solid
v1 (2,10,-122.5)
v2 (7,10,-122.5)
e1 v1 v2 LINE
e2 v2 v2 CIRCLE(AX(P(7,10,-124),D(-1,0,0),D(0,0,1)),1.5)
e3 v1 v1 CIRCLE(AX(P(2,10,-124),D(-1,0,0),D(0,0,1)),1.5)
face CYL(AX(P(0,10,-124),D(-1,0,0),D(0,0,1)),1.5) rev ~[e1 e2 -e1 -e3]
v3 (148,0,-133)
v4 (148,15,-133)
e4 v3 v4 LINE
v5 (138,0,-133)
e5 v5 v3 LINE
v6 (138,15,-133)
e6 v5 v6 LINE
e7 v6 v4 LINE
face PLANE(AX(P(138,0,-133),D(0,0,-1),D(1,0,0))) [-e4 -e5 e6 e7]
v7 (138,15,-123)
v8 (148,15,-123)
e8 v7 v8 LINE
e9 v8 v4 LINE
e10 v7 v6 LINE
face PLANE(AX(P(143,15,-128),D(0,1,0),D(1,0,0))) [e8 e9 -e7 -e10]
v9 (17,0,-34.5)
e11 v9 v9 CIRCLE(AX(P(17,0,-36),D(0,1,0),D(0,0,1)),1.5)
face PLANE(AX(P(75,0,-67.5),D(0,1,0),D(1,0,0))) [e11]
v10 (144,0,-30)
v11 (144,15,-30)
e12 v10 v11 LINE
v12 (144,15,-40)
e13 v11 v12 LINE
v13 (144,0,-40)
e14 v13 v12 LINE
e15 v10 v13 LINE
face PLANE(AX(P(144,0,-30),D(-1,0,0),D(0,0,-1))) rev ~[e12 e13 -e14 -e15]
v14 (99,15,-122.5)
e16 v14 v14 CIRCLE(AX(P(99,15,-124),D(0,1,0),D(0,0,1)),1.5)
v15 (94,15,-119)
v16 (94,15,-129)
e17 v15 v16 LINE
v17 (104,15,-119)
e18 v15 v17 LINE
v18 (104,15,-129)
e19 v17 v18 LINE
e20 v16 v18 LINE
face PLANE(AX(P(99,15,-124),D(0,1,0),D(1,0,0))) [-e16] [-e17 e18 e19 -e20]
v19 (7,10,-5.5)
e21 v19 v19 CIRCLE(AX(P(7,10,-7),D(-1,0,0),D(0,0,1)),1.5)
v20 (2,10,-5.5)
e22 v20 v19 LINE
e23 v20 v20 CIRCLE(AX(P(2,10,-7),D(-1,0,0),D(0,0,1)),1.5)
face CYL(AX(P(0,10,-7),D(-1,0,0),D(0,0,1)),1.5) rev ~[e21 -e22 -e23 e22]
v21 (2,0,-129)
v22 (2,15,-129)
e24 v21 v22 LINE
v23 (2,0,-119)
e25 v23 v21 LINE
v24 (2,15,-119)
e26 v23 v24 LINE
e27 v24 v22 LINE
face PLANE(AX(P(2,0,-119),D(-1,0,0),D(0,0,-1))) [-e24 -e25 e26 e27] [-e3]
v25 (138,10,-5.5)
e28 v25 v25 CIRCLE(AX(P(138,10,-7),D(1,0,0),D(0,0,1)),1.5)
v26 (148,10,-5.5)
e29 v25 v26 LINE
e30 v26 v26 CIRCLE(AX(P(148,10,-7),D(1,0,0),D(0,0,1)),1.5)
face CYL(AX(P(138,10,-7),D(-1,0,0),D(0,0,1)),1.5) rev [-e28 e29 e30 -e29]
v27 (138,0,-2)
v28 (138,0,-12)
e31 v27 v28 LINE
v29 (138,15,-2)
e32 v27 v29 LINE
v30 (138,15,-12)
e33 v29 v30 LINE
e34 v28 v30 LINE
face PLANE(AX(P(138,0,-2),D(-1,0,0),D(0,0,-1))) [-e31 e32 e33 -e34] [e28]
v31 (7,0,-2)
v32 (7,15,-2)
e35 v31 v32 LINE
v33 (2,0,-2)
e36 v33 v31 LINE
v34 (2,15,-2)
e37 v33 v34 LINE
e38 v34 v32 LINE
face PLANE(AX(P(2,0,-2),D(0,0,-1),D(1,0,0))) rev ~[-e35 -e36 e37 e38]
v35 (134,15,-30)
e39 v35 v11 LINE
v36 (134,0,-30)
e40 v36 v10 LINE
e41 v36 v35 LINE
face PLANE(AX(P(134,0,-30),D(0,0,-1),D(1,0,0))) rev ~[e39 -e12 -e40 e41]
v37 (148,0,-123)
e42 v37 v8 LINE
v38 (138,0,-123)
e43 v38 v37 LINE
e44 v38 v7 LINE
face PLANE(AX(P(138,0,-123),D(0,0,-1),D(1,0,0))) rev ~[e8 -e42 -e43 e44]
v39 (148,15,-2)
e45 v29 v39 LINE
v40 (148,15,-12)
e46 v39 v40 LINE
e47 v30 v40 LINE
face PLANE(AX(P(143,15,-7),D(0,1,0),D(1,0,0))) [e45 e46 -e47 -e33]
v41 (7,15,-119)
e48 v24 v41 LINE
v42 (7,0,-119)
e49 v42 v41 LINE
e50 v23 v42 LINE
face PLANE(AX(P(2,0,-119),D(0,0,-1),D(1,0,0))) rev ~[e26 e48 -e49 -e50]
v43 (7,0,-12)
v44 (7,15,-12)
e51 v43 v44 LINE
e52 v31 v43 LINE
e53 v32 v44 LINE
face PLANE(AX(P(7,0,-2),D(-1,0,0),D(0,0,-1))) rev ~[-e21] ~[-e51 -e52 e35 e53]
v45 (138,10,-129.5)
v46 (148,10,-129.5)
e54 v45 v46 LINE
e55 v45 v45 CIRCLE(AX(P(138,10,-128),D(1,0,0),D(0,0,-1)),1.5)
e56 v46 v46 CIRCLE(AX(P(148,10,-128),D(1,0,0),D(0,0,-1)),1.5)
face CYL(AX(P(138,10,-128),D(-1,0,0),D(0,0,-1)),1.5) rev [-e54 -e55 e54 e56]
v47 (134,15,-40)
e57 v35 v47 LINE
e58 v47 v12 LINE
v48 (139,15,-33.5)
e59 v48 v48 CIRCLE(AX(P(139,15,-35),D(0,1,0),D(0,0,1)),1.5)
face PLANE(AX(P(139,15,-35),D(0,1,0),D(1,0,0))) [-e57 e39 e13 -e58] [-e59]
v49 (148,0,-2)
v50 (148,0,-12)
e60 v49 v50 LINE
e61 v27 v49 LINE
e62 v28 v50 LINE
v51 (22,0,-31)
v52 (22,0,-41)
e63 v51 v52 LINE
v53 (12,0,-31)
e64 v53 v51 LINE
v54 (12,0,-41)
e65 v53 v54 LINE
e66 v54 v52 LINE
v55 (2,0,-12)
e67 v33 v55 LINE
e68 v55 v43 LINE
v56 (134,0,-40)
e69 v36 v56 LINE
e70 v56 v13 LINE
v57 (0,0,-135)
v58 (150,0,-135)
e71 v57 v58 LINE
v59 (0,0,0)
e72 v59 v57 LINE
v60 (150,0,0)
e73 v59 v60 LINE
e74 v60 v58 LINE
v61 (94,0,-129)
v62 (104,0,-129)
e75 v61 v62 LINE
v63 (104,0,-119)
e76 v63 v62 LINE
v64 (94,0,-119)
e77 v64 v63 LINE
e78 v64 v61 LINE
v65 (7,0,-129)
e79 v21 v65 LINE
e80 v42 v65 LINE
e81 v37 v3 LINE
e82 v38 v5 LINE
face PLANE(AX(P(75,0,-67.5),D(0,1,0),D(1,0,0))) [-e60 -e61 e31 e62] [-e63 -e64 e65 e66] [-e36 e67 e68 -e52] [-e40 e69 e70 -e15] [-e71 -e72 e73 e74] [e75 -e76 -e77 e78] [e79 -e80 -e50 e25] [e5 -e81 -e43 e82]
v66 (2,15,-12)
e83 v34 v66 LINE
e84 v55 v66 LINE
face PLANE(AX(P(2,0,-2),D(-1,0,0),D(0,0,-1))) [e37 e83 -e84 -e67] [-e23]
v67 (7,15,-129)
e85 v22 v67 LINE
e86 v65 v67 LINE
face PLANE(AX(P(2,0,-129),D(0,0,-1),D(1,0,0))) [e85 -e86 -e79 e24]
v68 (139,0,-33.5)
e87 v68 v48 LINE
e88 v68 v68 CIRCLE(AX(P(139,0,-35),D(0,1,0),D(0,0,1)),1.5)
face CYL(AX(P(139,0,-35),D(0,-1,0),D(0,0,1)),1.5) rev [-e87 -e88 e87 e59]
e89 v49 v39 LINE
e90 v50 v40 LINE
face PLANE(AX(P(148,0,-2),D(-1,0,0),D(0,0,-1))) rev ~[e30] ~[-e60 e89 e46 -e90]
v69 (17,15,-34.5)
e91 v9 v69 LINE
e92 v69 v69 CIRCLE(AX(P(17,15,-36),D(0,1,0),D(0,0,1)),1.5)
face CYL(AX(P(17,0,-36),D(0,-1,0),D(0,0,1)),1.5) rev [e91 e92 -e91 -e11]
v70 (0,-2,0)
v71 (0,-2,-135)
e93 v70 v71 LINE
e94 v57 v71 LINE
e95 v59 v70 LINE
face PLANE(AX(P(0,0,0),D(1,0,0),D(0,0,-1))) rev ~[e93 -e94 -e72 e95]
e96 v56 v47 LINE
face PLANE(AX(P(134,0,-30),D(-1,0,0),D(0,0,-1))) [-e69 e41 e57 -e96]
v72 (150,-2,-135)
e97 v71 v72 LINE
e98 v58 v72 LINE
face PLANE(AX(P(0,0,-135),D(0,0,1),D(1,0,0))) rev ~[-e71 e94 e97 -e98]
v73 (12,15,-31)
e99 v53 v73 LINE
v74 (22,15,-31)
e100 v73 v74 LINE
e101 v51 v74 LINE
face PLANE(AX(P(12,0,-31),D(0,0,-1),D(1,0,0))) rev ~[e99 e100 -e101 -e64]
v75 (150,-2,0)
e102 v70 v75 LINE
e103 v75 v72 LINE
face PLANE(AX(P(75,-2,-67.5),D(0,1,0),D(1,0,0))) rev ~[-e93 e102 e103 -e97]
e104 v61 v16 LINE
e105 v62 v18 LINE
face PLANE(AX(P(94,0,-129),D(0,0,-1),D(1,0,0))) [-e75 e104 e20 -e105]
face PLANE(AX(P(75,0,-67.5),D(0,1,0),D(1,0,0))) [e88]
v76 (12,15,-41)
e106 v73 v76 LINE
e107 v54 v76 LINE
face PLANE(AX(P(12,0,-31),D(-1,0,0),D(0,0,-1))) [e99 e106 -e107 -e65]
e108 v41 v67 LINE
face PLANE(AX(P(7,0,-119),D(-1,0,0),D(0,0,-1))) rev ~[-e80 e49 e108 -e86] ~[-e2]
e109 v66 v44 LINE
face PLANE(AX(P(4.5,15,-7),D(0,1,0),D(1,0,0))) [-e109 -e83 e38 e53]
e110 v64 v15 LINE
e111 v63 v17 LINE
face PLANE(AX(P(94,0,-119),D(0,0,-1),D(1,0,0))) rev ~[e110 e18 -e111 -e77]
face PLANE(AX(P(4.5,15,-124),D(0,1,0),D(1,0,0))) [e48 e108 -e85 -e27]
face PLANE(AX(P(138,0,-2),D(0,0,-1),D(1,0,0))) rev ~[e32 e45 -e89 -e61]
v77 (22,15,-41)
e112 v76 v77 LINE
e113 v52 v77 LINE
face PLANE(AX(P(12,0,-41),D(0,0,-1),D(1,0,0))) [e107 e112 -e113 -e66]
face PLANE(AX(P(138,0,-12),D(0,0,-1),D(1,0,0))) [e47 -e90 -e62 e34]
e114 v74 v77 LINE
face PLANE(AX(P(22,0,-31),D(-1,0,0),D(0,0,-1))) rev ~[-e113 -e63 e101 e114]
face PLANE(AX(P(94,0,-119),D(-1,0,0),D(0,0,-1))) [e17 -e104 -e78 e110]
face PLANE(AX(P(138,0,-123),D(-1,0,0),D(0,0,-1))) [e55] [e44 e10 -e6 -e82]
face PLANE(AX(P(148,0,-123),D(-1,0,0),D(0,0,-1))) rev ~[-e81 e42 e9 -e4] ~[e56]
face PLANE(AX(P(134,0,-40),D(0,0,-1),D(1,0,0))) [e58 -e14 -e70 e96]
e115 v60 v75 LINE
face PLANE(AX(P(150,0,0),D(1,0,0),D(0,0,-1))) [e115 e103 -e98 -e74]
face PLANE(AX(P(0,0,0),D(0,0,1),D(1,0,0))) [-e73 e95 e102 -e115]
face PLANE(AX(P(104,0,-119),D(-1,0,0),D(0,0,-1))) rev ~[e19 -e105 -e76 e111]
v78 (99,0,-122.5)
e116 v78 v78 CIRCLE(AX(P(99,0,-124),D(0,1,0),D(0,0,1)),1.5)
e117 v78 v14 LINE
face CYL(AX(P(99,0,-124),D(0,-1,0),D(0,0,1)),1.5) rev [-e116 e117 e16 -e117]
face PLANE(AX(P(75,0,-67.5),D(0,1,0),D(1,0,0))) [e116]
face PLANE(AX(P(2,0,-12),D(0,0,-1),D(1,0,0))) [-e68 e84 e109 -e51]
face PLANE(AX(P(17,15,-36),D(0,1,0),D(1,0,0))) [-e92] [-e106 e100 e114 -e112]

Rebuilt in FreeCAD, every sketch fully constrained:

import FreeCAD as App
import Part
import Sketcher

V = App.Vector
Q = App.Units.Quantity

doc = App.newDocument("Part")
params = doc.addObject("Spreadsheet::Sheet", "Params")
for row, (alias, value) in enumerate([
    ("sketch1_width", "150 mm"),
    ("sketch1_height", "135 mm"),
    ("pad1_length", "2 mm"),
    ("sketch2_diameter", "3 mm"),
    ("sketch2_width", "5 mm"),
    ("sketch2_width2", "10 mm"),
    ("pad2_length", "15 mm"),
    ("sketch3_diameter", "3 mm"),
    ("pocket1_length", "10 mm"),
    ("sketch4_diameter", "3 mm"),
    ("pocket2_length", "10 mm"),
], start=1):
    params.set(f"A{row}", alias)
    params.set(f"B{row}", "=" + value)
    params.setAlias(f"B{row}", alias)

body = doc.addObject("PartDesign::Body", "Body")

sketch1 = body.newObject("Sketcher::SketchObject", "Sketch")
sketch1.AttachmentSupport = (doc.getObject("XZ_Plane"), [""])
sketch1.MapMode = "FlatFace"
sketch1.addGeometry([
    Part.LineSegment(V(0, -135, 0), V(0, 0, 0)),
    Part.LineSegment(V(0, 0, 0), V(150, 0, 0)),
    Part.LineSegment(V(150, 0, 0), V(150, -135, 0)),
    Part.LineSegment(V(150, -135, 0), V(0, -135, 0)),
], False)
sketch1.addConstraint([
    Sketcher.Constraint("Coincident", 0, 2, 1, 1),
    Sketcher.Constraint("Coincident", 1, 2, 2, 1),
    Sketcher.Constraint("Coincident", 2, 2, 3, 1),
    Sketcher.Constraint("Coincident", 3, 2, 0, 1),
    Sketcher.Constraint("Vertical", 0),
    Sketcher.Constraint("Horizontal", 1),
    Sketcher.Constraint("Vertical", 2),
    Sketcher.Constraint("Horizontal", 3),
    Sketcher.Constraint("Coincident", 0, 2, -1, 1),
    Sketcher.Constraint("DistanceX", 1, 1, 1, 2, Q("150 mm")),
    Sketcher.Constraint("DistanceY", 0, 1, 0, 2, Q("135 mm")),
])
sketch1.setExpression("Constraints[9]", "Params.sketch1_width")
sketch1.setExpression("Constraints[10]", "Params.sketch1_height")
pad1 = body.newObject("PartDesign::Pad", "Pad")
pad1.Profile = sketch1
pad1.setExpression("Length", "Params.pad1_length")

sketch2 = body.newObject("Sketcher::SketchObject", "Sketch001")
sketch2.AttachmentSupport = (doc.getObject("XZ_Plane"), [""])
sketch2.MapMode = "FlatFace"
sketch2.addGeometry([
    Part.LineSegment(V(2, -129, 0), V(2, -119, 0)),
    Part.LineSegment(V(2, -119, 0), V(7, -119, 0)),
    Part.LineSegment(V(7, -119, 0), V(7, -129, 0)),
    Part.LineSegment(V(7, -129, 0), V(2, -129, 0)),
    Part.LineSegment(V(2, -12, 0), V(2, -2, 0)),
    Part.LineSegment(V(2, -2, 0), V(7, -2, 0)),
    Part.LineSegment(V(7, -2, 0), V(7, -12, 0)),
    Part.LineSegment(V(7, -12, 0), V(2, -12, 0)),
    Part.LineSegment(V(138, -133, 0), V(138, -123, 0)),
    Part.LineSegment(V(138, -123, 0), V(148, -123, 0)),
    Part.LineSegment(V(148, -123, 0), V(148, -133, 0)),
    Part.LineSegment(V(148, -133, 0), V(138, -133, 0)),
    Part.LineSegment(V(138, -12, 0), V(138, -2, 0)),
    Part.LineSegment(V(138, -2, 0), V(148, -2, 0)),
    Part.LineSegment(V(148, -2, 0), V(148, -12, 0)),
    Part.LineSegment(V(148, -12, 0), V(138, -12, 0)),
    Part.LineSegment(V(134, -40, 0), V(134, -30, 0)),
    Part.LineSegment(V(134, -30, 0), V(144, -30, 0)),
    Part.LineSegment(V(144, -30, 0), V(144, -40, 0)),
    Part.LineSegment(V(144, -40, 0), V(134, -40, 0)),
    Part.Circle(V(139, -35, 0), V(0, 0, 1), 1.5),
    Part.LineSegment(V(12, -41, 0), V(12, -31, 0)),
    Part.LineSegment(V(12, -31, 0), V(22, -31, 0)),
    Part.LineSegment(V(22, -31, 0), V(22, -41, 0)),
    Part.LineSegment(V(22, -41, 0), V(12, -41, 0)),
    Part.Circle(V(17, -36, 0), V(0, 0, 1), 1.5),
    Part.LineSegment(V(94, -129, 0), V(94, -119, 0)),
    Part.LineSegment(V(94, -119, 0), V(104, -119, 0)),
    Part.LineSegment(V(104, -119, 0), V(104, -129, 0)),
    Part.LineSegment(V(104, -129, 0), V(94, -129, 0)),
    Part.Circle(V(99, -124, 0), V(0, 0, 1), 1.5),
], False)
sketch2.addConstraint([
    Sketcher.Constraint("Coincident", 0, 2, 1, 1),
    Sketcher.Constraint("Coincident", 1, 2, 2, 1),
    Sketcher.Constraint("Coincident", 2, 2, 3, 1),
    Sketcher.Constraint("Coincident", 3, 2, 0, 1),
    Sketcher.Constraint("Coincident", 4, 2, 5, 1),
    Sketcher.Constraint("Coincident", 5, 2, 6, 1),
    Sketcher.Constraint("Coincident", 6, 2, 7, 1),
    Sketcher.Constraint("Coincident", 7, 2, 4, 1),
    Sketcher.Constraint("Coincident", 8, 2, 9, 1),
    Sketcher.Constraint("Coincident", 9, 2, 10, 1),
    Sketcher.Constraint("Coincident", 10, 2, 11, 1),
    Sketcher.Constraint("Coincident", 11, 2, 8, 1),
    Sketcher.Constraint("Coincident", 12, 2, 13, 1),
    Sketcher.Constraint("Coincident", 13, 2, 14, 1),
    Sketcher.Constraint("Coincident", 14, 2, 15, 1),
    Sketcher.Constraint("Coincident", 15, 2, 12, 1),
    Sketcher.Constraint("Coincident", 16, 2, 17, 1),
    Sketcher.Constraint("Coincident", 17, 2, 18, 1),
    Sketcher.Constraint("Coincident", 18, 2, 19, 1),
    Sketcher.Constraint("Coincident", 19, 2, 16, 1),
    Sketcher.Constraint("Coincident", 21, 2, 22, 1),
    Sketcher.Constraint("Coincident", 22, 2, 23, 1),
    Sketcher.Constraint("Coincident", 23, 2, 24, 1),
    Sketcher.Constraint("Coincident", 24, 2, 21, 1),
    Sketcher.Constraint("Coincident", 26, 2, 27, 1),
    Sketcher.Constraint("Coincident", 27, 2, 28, 1),
    Sketcher.Constraint("Coincident", 28, 2, 29, 1),
    Sketcher.Constraint("Coincident", 29, 2, 26, 1),
    Sketcher.Constraint("Vertical", 0),
    Sketcher.Constraint("Horizontal", 1),
    Sketcher.Constraint("Vertical", 2),
    Sketcher.Constraint("Horizontal", 3),
    Sketcher.Constraint("Vertical", 4),
    Sketcher.Constraint("Horizontal", 5),
    Sketcher.Constraint("Vertical", 6),
    Sketcher.Constraint("Horizontal", 7),
    Sketcher.Constraint("Vertical", 8),
    Sketcher.Constraint("Horizontal", 9),
    Sketcher.Constraint("Vertical", 10),
    Sketcher.Constraint("Horizontal", 11),
    Sketcher.Constraint("Vertical", 12),
    Sketcher.Constraint("Horizontal", 13),
    Sketcher.Constraint("Vertical", 14),
    Sketcher.Constraint("Horizontal", 15),
    Sketcher.Constraint("Vertical", 16),
    Sketcher.Constraint("Horizontal", 17),
    Sketcher.Constraint("Vertical", 18),
    Sketcher.Constraint("Horizontal", 19),
    Sketcher.Constraint("Vertical", 21),
    Sketcher.Constraint("Horizontal", 22),
    Sketcher.Constraint("Vertical", 23),
    Sketcher.Constraint("Horizontal", 24),
    Sketcher.Constraint("Vertical", 26),
    Sketcher.Constraint("Horizontal", 27),
    Sketcher.Constraint("Vertical", 28),
    Sketcher.Constraint("Horizontal", 29),
    Sketcher.Constraint("Equal", 20, 25),
    Sketcher.Constraint("Equal", 25, 30),
    Sketcher.Constraint("Horizontal", 5, 2, 12, 2),
    Sketcher.Constraint("Horizontal", 7, 2, 14, 2),
    Sketcher.Constraint("Horizontal", 1, 2, 26, 2),
    Sketcher.Constraint("Horizontal", 3, 2, 28, 2),
    Sketcher.Constraint("Vertical", 3, 2, 4, 2),
    Sketcher.Constraint("Vertical", 2, 2, 5, 2),
    Sketcher.Constraint("Vertical", 11, 2, 12, 2),
    Sketcher.Constraint("Vertical", 10, 2, 13, 2),
    Sketcher.Constraint("Equal", 15, 17),
    Sketcher.Constraint("Equal", 19, 22),
    Sketcher.Constraint("Equal", 24, 27),
    Sketcher.Constraint("Equal", 29, 0),
    Sketcher.Constraint("Equal", 2, 4),
    Sketcher.Constraint("Equal", 6, 8),
    Sketcher.Constraint("Equal", 14, 16),
    Sketcher.Constraint("Equal", 18, 21),
    Sketcher.Constraint("Diameter", 20, Q("3 mm")),
    Sketcher.Constraint("DistanceX", 1, 1, 1, 2, Q("5 mm")),
    Sketcher.Constraint("DistanceX", 9, 1, 9, 2, Q("10 mm")),
    Sketcher.Constraint("DistanceX", -1, 1, 20, 3, Q("139 mm")),
    Sketcher.Constraint("DistanceY", 20, 3, -1, 1, Q("35 mm")),
    Sketcher.Constraint("DistanceX", -1, 1, 25, 3, Q("17 mm")),
    Sketcher.Constraint("DistanceY", 25, 3, -1, 1, Q("36 mm")),
    Sketcher.Constraint("DistanceX", -1, 1, 30, 3, Q("99 mm")),
    Sketcher.Constraint("DistanceY", 30, 3, -1, 1, Q("124 mm")),
    Sketcher.Constraint("DistanceX", -1, 1, 0, 2, Q("2 mm")),
    Sketcher.Constraint("DistanceY", 0, 2, -1, 1, Q("119 mm")),
    Sketcher.Constraint("DistanceY", 4, 2, -1, 1, Q("2 mm")),
    Sketcher.Constraint("DistanceX", -1, 1, 8, 2, Q("138 mm")),
    Sketcher.Constraint("DistanceY", 8, 2, -1, 1, Q("123 mm")),
    Sketcher.Constraint("DistanceX", -1, 1, 16, 2, Q("134 mm")),
    Sketcher.Constraint("DistanceY", 16, 2, -1, 1, Q("30 mm")),
    Sketcher.Constraint("DistanceX", -1, 1, 21, 2, Q("12 mm")),
    Sketcher.Constraint("DistanceY", 21, 2, -1, 1, Q("31 mm")),
    Sketcher.Constraint("DistanceX", -1, 1, 26, 2, Q("94 mm")),
])
sketch2.setExpression("Constraints[74]", "Params.sketch2_diameter")
sketch2.setExpression("Constraints[75]", "Params.sketch2_width")
sketch2.setExpression("Constraints[76]", "Params.sketch2_width2")
pad2 = body.newObject("PartDesign::Pad", "Pad001")
pad2.Profile = sketch2
pad2.setExpression("Length", "Params.pad2_length")
pad2.Reversed = True

sketch3 = body.newObject("Sketcher::SketchObject", "Sketch002")
sketch3.AttachmentSupport = (doc.getObject("YZ_Plane"), [""])
sketch3.MapMode = "FlatFace"
sketch3.addGeometry([
    Part.Circle(V(10, -124, 0), V(0, 0, 1), 1.5),
    Part.Circle(V(10, -7, 0), V(0, 0, 1), 1.5),
], False)
sketch3.addConstraint([
    Sketcher.Constraint("Equal", 0, 1),
    Sketcher.Constraint("Vertical", 0, 3, 1, 3),
    Sketcher.Constraint("Diameter", 0, Q("3 mm")),
    Sketcher.Constraint("DistanceX", -1, 1, 0, 3, Q("10 mm")),
    Sketcher.Constraint("DistanceY", 0, 3, -1, 1, Q("124 mm")),
    Sketcher.Constraint("DistanceY", 1, 3, -1, 1, Q("7 mm")),
])
sketch3.setExpression("Constraints[2]", "Params.sketch3_diameter")
pocket1 = body.newObject("PartDesign::Pocket", "Pocket")
pocket1.Profile = sketch3
pocket1.setExpression("Length", "Params.pocket1_length")
pocket1.Reversed = True

sketch4 = body.newObject("Sketcher::SketchObject", "Sketch003")
sketch4.AttachmentSupport = (doc.getObject("YZ_Plane"), [""])
sketch4.MapMode = "FlatFace"
sketch4.AttachmentOffset = App.Placement(V(0, 0, 138), App.Rotation())
sketch4.addGeometry([
    Part.Circle(V(10, -7, 0), V(0, 0, 1), 1.5),
    Part.Circle(V(10, -128, 0), V(0, 0, 1), 1.5),
], False)
sketch4.addConstraint([
    Sketcher.Constraint("Equal", 0, 1),
    Sketcher.Constraint("Vertical", 0, 3, 1, 3),
    Sketcher.Constraint("Diameter", 0, Q("3 mm")),
    Sketcher.Constraint("DistanceX", -1, 1, 0, 3, Q("10 mm")),
    Sketcher.Constraint("DistanceY", 0, 3, -1, 1, Q("7 mm")),
    Sketcher.Constraint("DistanceY", 1, 3, -1, 1, Q("128 mm")),
])
sketch4.setExpression("Constraints[2]", "Params.sketch4_diameter")
pocket2 = body.newObject("PartDesign::Pocket", "Pocket001")
pocket2.Profile = sketch4
pocket2.setExpression("Length", "Params.pocket2_length")
pocket2.Reversed = True

doc.recompute()
